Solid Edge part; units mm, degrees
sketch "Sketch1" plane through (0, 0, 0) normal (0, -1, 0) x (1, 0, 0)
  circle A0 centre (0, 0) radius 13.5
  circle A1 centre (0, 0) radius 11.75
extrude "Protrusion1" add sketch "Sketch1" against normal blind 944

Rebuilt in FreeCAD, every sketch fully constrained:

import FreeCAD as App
import Part
import Sketcher
from FreeCAD import Vector
Q = App.Units.Quantity

doc = App.newDocument("Part")
body = doc.addObject("PartDesign::Body", "Body")

# Sketch on XZ plane
sketch1 = body.newObject("Sketcher::SketchObject", "Sketch")
sketch1.AttachmentSupport = (doc.getObject("XZ_Plane"), [""])
sketch1.MapMode = "FlatFace"
sketch1.addGeometry(Part.Circle(Vector(0, 0, 0), Vector(0, 0, 1), 14), False)
sketch1.addGeometry(Part.Circle(Vector(0, 0, 0), Vector(0, 0, 1), 12), False)
sketch1.addConstraint(Sketcher.Constraint("Coincident", 0, 3, -1, 1))
sketch1.addConstraint(Sketcher.Constraint("Coincident", 1, 3, -1, 1))
sketch1.addConstraint(Sketcher.Constraint("Diameter", 0, Q("27 mm")))
sketch1.addConstraint(Sketcher.Constraint("Diameter", 1, Q("23.5 mm")))
pad1 = body.newObject("PartDesign::Pad", "Pad")
pad1.Profile = sketch1
pad1.Length = 944
pad1.Reversed = True

doc.recompute()
